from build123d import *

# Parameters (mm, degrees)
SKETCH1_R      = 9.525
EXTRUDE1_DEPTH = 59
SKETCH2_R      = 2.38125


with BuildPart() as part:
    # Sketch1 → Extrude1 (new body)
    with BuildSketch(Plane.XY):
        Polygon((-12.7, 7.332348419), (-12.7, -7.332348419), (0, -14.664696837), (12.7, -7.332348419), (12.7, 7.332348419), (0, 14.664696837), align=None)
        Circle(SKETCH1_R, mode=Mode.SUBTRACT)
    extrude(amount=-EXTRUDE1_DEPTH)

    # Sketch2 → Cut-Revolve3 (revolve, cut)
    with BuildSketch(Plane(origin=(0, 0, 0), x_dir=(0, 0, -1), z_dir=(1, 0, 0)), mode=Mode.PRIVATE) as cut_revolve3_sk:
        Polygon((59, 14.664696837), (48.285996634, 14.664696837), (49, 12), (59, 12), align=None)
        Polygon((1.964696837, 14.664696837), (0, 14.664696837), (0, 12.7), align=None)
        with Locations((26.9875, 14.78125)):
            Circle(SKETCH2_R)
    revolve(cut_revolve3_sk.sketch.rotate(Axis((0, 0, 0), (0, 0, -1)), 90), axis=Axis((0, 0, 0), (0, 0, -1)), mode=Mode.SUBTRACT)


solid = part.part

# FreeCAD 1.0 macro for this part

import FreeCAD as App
import Part
import Sketcher

V = App.Vector
Q = App.Units.Quantity


def add_polygon(sketch, points):
    """Adds a closed chain of lines whose ends are joined by coincident constraints."""
    first, n = sketch.GeometryCount, len(points)
    for a, b in zip(points, points[1:] + points[:1]):
        sketch.addGeometry(Part.LineSegment(App.Vector(*a, 0), App.Vector(*b, 0)), False)
    for i in range(n):
        sketch.addConstraint(Sketcher.Constraint("Coincident", first + i, 2, first + (i + 1) % n, 1))

doc = App.newDocument("Part")
body = doc.addObject("PartDesign::Body", "Body")

sketch1 = body.newObject("Sketcher::SketchObject", "Sketch")
sketch1.AttachmentSupport = (doc.getObject("XY_Plane"), [""])
sketch1.MapMode = "FlatFace"
add_polygon(sketch1, [(-12.7, 7.332348), (-12.7, -7.332348), (0, -14.664697), (12.7, -7.332348), (12.7, 7.332348), (0, 14.664697)])
sketch1.addGeometry(Part.Circle(V(0, 0, 0), V(0, 0, 1), 9.525), False)
sketch1.addConstraint([
    Sketcher.Constraint("Vertical", 0),
    Sketcher.Constraint("Vertical", 3),
    Sketcher.Constraint("Coincident", 6, 3, -1, 1),
    Sketcher.Constraint("Symmetric", 0, 2, 3, 2, -1, 1),
    Sketcher.Constraint("Symmetric", 1, 2, 4, 2, -1, 1),
    Sketcher.Constraint("PointOnObject", 1, 2, -2),
    Sketcher.Constraint("Parallel", 2, 5),
    Sketcher.Constraint("Horizontal", 0, 2, 2, 2),
    Sketcher.Constraint("Diameter", 6, 19.05),
    Sketcher.Constraint("Angle", 1, Q("-30 deg")),
    Sketcher.Constraint("DistanceX", 0, 2, -1, 1, 12.7),
    Sketcher.Constraint("DistanceY", 0, 2, 0, 1, 14.664697),
])
pad1 = body.newObject("PartDesign::Pad", "Pad")
pad1.Profile = sketch1
pad1.Length = 59
pad1.Reversed = True

sketch2 = body.newObject("Sketcher::SketchObject", "Sketch001")
sketch2.AttachmentSupport = (doc.getObject("YZ_Plane"), [""])
sketch2.MapMode = "FlatFace"
add_polygon(sketch2, [(14.664697, -59), (14.664697, -48.285997), (12, -49), (12, -59)])
add_polygon(sketch2, [(14.664697, -1.964697), (14.664697, 0), (12.7, 0)])
sketch2.addGeometry(Part.Circle(V(14.78125, -26.9875, 0), V(0, 0, 1), 2.38125), False)
sketch2.addConstraint([
    Sketcher.Constraint("Vertical", 0),
    Sketcher.Constraint("Vertical", 2),
    Sketcher.Constraint("Horizontal", 3),
    Sketcher.Constraint("Vertical", 4),
    Sketcher.Constraint("Horizontal", 5),
    Sketcher.Constraint("PointOnObject", 4, 2, -1),
    Sketcher.Constraint("Vertical", 3, 2, 4, 2),
    Sketcher.Constraint("Equal", 5, 4),
    Sketcher.Constraint("DistanceY", 2, 2, 2, 1, 10.0),
    Sketcher.Constraint("Angle", 1, Q("-165 deg")),
    Sketcher.Constraint("DistanceX", -1, 1, 1, 2, 12.0),
    Sketcher.Constraint("DistanceY", 1, 2, -1, 1, 49.0),
    Sketcher.Constraint("Diameter", 7, 4.7625),
    Sketcher.Constraint("DistanceX", -1, 1, 5, 2, 12.7),
    Sketcher.Constraint("Distance", 6, 2.778501),
    Sketcher.Constraint("DistanceY", 7, 3, -1, 1, 26.9875),
    Sketcher.Constraint("DistanceX", -1, 1, 7, 3, 14.78125),
])
groove = body.newObject("PartDesign::Groove", "Groove")
groove.Profile = sketch2
groove.ReferenceAxis = (sketch2, ["V_Axis"])
groove.Angle = 360

doc.recompute()
